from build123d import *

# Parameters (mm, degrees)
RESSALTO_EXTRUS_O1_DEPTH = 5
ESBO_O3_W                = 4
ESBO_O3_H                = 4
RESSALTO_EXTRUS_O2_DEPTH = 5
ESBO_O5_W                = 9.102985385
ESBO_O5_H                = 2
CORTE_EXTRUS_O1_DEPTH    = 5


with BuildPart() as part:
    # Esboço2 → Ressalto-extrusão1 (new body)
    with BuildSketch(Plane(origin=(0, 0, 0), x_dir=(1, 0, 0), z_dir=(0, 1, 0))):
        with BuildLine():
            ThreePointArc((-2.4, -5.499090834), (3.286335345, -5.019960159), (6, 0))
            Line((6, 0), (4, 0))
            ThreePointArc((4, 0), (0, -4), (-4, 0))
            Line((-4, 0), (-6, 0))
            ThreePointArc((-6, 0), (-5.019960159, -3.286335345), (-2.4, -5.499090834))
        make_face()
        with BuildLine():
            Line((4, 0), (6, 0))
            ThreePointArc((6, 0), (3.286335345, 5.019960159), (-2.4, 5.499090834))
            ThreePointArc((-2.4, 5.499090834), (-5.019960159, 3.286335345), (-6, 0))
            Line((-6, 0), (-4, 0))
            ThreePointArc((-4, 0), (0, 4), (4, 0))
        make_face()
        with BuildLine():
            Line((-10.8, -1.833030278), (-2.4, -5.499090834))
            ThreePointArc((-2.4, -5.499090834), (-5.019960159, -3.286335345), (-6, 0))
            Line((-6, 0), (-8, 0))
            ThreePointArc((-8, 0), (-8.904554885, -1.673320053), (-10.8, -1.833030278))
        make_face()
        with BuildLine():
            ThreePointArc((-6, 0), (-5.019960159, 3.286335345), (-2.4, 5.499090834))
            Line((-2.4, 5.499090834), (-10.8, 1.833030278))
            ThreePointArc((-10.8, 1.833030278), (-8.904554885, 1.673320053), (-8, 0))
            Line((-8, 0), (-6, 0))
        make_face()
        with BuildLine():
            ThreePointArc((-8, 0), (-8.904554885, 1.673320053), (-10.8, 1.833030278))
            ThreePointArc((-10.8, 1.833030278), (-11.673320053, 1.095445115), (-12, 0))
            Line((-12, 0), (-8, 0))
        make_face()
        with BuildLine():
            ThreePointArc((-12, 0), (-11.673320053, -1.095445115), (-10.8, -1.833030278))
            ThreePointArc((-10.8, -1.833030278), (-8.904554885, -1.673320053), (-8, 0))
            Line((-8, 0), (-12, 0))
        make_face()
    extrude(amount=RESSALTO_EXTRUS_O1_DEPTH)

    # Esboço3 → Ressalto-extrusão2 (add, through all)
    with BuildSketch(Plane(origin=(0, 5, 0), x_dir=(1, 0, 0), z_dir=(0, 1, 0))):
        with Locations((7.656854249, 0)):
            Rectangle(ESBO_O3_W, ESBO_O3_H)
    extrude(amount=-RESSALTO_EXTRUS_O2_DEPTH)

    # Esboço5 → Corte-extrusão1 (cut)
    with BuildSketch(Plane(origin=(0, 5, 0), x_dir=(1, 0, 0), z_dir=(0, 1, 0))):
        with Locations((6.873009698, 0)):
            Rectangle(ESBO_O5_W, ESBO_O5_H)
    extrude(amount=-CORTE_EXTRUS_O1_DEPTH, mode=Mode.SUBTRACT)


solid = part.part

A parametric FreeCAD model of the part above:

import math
import FreeCAD as App
import Part
import Sketcher

doc = App.newDocument("Part")
body = doc.addObject("PartDesign::Body", "Body")

# Sketch on XZ plane
sketch1 = doc.addObject("Sketcher::SketchObject", "Sketch")
body.addObject(sketch1)
sketch1.AttachmentSupport = (doc.XZ_Plane, [""])
sketch1.MapMode = "FlatFace"
sketch1.addGeometry([
    Part.LineSegment(App.Vector(-10.8, 1.8, 0), App.Vector(-2.4, 5.5, 0)),  # 0
    Part.ArcOfCircle(Part.Circle(App.Vector(0, 0, 0), App.Vector(0, 0, 1), 6), math.radians(0), math.radians(114)),  # 1
    Part.ArcOfCircle(Part.Circle(App.Vector(0, 0, 0), App.Vector(0, 0, 1), 6), math.radians(-114), math.radians(0)),  # 2
    Part.LineSegment(App.Vector(-2.4, -5.5, 0), App.Vector(-10.8, -1.8, 0)),  # 3
    Part.ArcOfCircle(Part.Circle(App.Vector(-10, 0, 0), App.Vector(0, 0, 1), 2), math.radians(180), math.radians(246)),  # 4
    Part.ArcOfCircle(Part.Circle(App.Vector(-10, 0, 0), App.Vector(0, 0, 1), 2), math.radians(114), math.radians(180)),  # 5
    Part.Circle(App.Vector(0, 0, 0), App.Vector(0, 0, 1), 4),  # 6
], False)
sketch1.addConstraint([
    Sketcher.Constraint("Tangent", 0, 2, 1, 2),
    Sketcher.Constraint("Tangent", 1, 1, 2, 2),
    Sketcher.Constraint("Tangent", 2, 1, 3, 1),
    Sketcher.Constraint("Tangent", 3, 2, 4, 2),
    Sketcher.Constraint("Tangent", 4, 1, 5, 2),
    Sketcher.Constraint("Tangent", 5, 1, 0, 1),
    Sketcher.Constraint("Coincident", 1, 3, -1, 1),
    Sketcher.Constraint("Coincident", 6, 3, -1, 1),
    Sketcher.Constraint("Equal", 1, 2),
    Sketcher.Constraint("Equal", 4, 5),
    Sketcher.Constraint("PointOnObject", 4, 3, -1),
    Sketcher.Constraint("PointOnObject", 1, 1, -1),
    Sketcher.Constraint("PointOnObject", 4, 1, -1),
    Sketcher.Constraint("Diameter", 6, 8.0),
    Sketcher.Constraint("Radius", 1, 6.0),
    Sketcher.Constraint("Radius", 4, 2.0),
    Sketcher.Constraint("DistanceX", 4, 3, -1, 1, 10.0),
])
pad1 = doc.addObject("PartDesign::Pad", "Pad")
body.addObject(pad1)
pad1.Profile = sketch1
pad1.Length = 5
pad1.Reversed = True

# Sketch on XZ plane
sketch2 = doc.addObject("Sketcher::SketchObject", "Sketch001")
body.addObject(sketch2)
sketch2.AttachmentSupport = (doc.XZ_Plane, [""])
sketch2.MapMode = "FlatFace"
sketch2.AttachmentOffset = App.Placement(App.Vector(0, 0, -5), App.Rotation())
sketch2.addGeometry([
    Part.LineSegment(App.Vector(5.7, -2, 0), App.Vector(5.7, 2, 0)),
    Part.LineSegment(App.Vector(5.7, 2, 0), App.Vector(9.7, 2, 0)),
    Part.LineSegment(App.Vector(9.7, 2, 0), App.Vector(9.7, -2, 0)),
    Part.LineSegment(App.Vector(9.7, -2, 0), App.Vector(5.7, -2, 0)),
], False)
sketch2.addConstraint([
    Sketcher.Constraint("Coincident", 0, 2, 1, 1),
    Sketcher.Constraint("Coincident", 1, 2, 2, 1),
    Sketcher.Constraint("Coincident", 2, 2, 3, 1),
    Sketcher.Constraint("Coincident", 3, 2, 0, 1),
    Sketcher.Constraint("Vertical", 0),
    Sketcher.Constraint("Horizontal", 1),
    Sketcher.Constraint("Vertical", 2),
    Sketcher.Constraint("Horizontal", 3),
    Sketcher.Constraint("Equal", 3, 0),
    Sketcher.Constraint("DistanceX", 1, 1, 1, 2, 4.0),
    Sketcher.Constraint("DistanceY", -1, 1, 0, 2, 2.0),
    Sketcher.Constraint("DistanceX", -1, 1, 0, 2, 5.656854),
])
pad2 = doc.addObject("PartDesign::Pad", "Pad001")
body.addObject(pad2)
pad2.Profile = sketch2
pad2.Length = 5

# Sketch on XZ plane
sketch3 = doc.addObject("Sketcher::SketchObject", "Sketch002")
body.addObject(sketch3)
sketch3.AttachmentSupport = (doc.XZ_Plane, [""])
sketch3.MapMode = "FlatFace"
sketch3.AttachmentOffset = App.Placement(App.Vector(0, 0, -5), App.Rotation())
sketch3.addGeometry([
    Part.LineSegment(App.Vector(2.3, -1, 0), App.Vector(2.3, 1, 0)),
    Part.LineSegment(App.Vector(2.3, 1, 0), App.Vector(11.4, 1, 0)),
    Part.LineSegment(App.Vector(11.4, 1, 0), App.Vector(11.4, -1, 0)),
    Part.LineSegment(App.Vector(11.4, -1, 0), App.Vector(2.3, -1, 0)),
], False)
sketch3.addConstraint([
    Sketcher.Constraint("Coincident", 0, 2, 1, 1),
    Sketcher.Constraint("Coincident", 1, 2, 2, 1),
    Sketcher.Constraint("Coincident", 2, 2, 3, 1),
    Sketcher.Constraint("Coincident", 3, 2, 0, 1),
    Sketcher.Constraint("Vertical", 0),
    Sketcher.Constraint("Horizontal", 1),
    Sketcher.Constraint("Vertical", 2),
    Sketcher.Constraint("Horizontal", 3),
    Sketcher.Constraint("DistanceY", 0, 1, 0, 2, 2.0),
    Sketcher.Constraint("DistanceY", -1, 1, 0, 2, 1.0),
    Sketcher.Constraint("DistanceX", 1, 1, 1, 2, 9.102985),
    Sketcher.Constraint("DistanceX", -1, 1, 0, 2, 2.321517),
])
pocket1 = doc.addObject("PartDesign::Pocket", "Pocket")
body.addObject(pocket1)
pocket1.Profile = sketch3
pocket1.Length = 5
pocket1.Reversed = True

doc.recompute()
